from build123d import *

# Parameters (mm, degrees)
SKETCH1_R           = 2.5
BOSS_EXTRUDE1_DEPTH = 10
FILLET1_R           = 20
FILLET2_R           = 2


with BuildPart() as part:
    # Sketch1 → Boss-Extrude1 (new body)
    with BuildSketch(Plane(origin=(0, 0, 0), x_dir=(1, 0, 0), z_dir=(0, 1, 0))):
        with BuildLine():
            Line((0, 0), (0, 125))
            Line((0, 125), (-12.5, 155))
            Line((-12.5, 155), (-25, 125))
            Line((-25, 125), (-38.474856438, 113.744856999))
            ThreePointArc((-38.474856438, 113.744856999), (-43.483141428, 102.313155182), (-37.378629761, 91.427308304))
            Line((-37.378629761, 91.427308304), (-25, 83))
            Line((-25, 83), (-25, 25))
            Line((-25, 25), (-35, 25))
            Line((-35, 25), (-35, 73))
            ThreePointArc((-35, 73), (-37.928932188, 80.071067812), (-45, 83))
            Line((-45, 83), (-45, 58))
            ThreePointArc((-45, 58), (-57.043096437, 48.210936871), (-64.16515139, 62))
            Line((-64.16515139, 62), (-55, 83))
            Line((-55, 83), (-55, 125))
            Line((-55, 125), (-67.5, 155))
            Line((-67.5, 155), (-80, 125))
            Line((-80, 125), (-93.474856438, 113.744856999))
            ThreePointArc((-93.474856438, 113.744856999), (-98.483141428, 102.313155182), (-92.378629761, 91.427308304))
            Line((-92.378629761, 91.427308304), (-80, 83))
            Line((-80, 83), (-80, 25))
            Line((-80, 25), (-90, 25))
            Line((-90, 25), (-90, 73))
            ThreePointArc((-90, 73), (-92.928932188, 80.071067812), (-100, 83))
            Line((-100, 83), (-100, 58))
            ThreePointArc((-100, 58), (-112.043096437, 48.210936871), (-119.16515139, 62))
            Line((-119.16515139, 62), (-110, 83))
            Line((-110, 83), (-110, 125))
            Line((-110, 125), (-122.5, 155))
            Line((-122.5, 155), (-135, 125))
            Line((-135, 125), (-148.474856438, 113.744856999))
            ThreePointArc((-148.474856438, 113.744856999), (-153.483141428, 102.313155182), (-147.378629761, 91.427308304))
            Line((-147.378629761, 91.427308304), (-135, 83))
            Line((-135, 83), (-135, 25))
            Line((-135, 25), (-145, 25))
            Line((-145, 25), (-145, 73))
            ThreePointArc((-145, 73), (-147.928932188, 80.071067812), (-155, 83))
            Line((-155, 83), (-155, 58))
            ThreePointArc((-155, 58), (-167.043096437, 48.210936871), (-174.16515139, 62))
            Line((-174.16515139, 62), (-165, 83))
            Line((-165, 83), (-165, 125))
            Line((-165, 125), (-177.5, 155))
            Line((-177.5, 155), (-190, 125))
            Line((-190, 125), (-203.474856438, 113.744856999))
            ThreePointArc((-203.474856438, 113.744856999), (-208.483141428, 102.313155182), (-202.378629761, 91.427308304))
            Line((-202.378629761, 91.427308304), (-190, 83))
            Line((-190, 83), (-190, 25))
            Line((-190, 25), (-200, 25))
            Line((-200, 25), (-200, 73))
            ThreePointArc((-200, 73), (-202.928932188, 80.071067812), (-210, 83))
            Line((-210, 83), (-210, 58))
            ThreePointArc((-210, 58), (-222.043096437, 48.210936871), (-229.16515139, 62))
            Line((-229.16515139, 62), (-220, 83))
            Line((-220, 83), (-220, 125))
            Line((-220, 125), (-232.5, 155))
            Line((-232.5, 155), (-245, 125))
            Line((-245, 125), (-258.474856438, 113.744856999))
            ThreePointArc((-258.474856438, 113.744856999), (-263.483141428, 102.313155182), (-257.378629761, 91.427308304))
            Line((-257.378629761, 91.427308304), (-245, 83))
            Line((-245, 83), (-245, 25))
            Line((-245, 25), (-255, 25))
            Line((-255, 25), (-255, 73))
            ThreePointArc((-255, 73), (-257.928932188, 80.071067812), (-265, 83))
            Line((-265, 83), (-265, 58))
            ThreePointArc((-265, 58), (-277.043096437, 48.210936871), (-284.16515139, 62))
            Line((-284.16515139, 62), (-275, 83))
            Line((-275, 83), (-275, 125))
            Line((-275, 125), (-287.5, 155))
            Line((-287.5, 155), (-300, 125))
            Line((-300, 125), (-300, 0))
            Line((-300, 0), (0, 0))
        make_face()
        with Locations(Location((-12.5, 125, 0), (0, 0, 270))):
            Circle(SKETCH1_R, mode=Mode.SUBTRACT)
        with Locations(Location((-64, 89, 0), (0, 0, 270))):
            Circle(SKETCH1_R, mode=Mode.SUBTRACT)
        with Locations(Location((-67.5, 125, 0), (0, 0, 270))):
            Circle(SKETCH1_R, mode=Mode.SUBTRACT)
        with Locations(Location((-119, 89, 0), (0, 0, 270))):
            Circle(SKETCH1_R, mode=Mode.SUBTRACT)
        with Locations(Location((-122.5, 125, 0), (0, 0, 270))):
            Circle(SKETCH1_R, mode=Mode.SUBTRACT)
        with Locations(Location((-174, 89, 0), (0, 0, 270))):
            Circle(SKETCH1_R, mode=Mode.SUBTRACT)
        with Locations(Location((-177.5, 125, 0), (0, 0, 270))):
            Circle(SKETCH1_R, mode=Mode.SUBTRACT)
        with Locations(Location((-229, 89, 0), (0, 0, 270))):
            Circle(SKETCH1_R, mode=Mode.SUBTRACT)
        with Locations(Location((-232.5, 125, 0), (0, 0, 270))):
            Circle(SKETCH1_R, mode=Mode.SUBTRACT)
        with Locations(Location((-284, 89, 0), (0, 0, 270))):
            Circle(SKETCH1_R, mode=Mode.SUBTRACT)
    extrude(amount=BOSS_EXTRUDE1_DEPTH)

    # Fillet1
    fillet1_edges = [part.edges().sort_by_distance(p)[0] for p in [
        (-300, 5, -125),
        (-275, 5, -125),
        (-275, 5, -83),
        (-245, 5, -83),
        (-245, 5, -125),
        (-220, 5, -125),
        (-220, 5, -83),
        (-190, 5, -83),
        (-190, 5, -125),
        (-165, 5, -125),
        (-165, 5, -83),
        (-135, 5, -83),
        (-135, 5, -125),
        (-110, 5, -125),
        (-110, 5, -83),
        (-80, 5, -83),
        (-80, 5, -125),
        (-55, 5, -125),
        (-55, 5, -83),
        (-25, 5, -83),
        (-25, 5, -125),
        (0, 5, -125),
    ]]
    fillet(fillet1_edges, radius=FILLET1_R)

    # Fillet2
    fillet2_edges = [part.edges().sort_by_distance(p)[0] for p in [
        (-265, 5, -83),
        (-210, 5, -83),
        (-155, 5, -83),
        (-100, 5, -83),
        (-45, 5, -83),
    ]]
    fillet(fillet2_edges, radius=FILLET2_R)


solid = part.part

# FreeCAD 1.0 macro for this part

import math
import FreeCAD as App
import Part
import Sketcher

V = App.Vector
Q = App.Units.Quantity


def edges_at(feature, points):
    """Names of the edges that pass closest to the given points."""
    edges = feature.Shape.Edges
    near = lambda p: min(range(len(edges)), key=lambda i: edges[i].distToShape(Part.Vertex(*p))[0])
    return sorted({f"Edge{near(p) + 1}" for p in points})

doc = App.newDocument("Part")
body = doc.addObject("PartDesign::Body", "Body")

# Sketch on XZ plane
sketch1 = body.newObject("Sketcher::SketchObject", "Sketch")
sketch1.AttachmentSupport = (doc.getObject("XZ_Plane"), [""])
sketch1.MapMode = "FlatFace"
sketch1.addGeometry(Part.LineSegment(V(0, 0, 0), V(0, -125, 0)), False)
sketch1.addGeometry(Part.LineSegment(V(0, -125, 0), V(-12.5, -155, 0)), False)
sketch1.addGeometry(Part.LineSegment(V(-12.5, -155, 0), V(-25, -125, 0)), False)
sketch1.addGeometry(Part.LineSegment(V(-25, -125, 0), V(-38.5, -113.7, 0)), False)
sketch1.addGeometry(Part.ArcOfCircle(Part.Circle(V(-29.5, -103, 0), V(0, 0, 1), 14), math.radians(124), math.radians(230)), False)
sketch1.addGeometry(Part.LineSegment(V(-37.4, -91.4, 0), V(-25, -83, 0)), False)
sketch1.addGeometry(Part.LineSegment(V(-25, -83, 0), V(-25, -25, 0)), False)
sketch1.addGeometry(Part.LineSegment(V(-25, -25, 0), V(-35, -25, 0)), False)
sketch1.addGeometry(Part.LineSegment(V(-35, -25, 0), V(-35, -73, 0)), False)
sketch1.addGeometry(Part.ArcOfCircle(Part.Circle(V(-45, -73, 0), V(0, 0, 1), 10), math.radians(-90), math.radians(0)), False)
sketch1.addGeometry(Part.LineSegment(V(-45, -83, 0), V(-45, -58, 0)), False)
sketch1.addGeometry(Part.ArcOfCircle(Part.Circle(V(-55, -58, 0), V(0, 0, 1), 10), math.radians(0), math.radians(204)), False)
sketch1.addGeometry(Part.LineSegment(V(-64.2, -62, 0), V(-55, -83, 0)), False)
sketch1.addGeometry(Part.LineSegment(V(-55, -83, 0), V(-55, -125, 0)), False)
sketch1.addGeometry(Part.LineSegment(V(-55, -125, 0), V(-67.5, -155, 0)), False)
sketch1.addGeometry(Part.LineSegment(V(-67.5, -155, 0), V(-80, -125, 0)), False)
sketch1.addGeometry(Part.LineSegment(V(-80, -125, 0), V(-93.5, -113.7, 0)), False)
sketch1.addGeometry(Part.ArcOfCircle(Part.Circle(V(-84.5, -103, 0), V(0, 0, 1), 14), math.radians(124), math.radians(230)), False)
sketch1.addGeometry(Part.LineSegment(V(-92.4, -91.4, 0), V(-80, -83, 0)), False)
sketch1.addGeometry(Part.LineSegment(V(-80, -83, 0), V(-80, -25, 0)), False)
sketch1.addGeometry(Part.LineSegment(V(-80, -25, 0), V(-90, -25, 0)), False)
sketch1.addGeometry(Part.LineSegment(V(-90, -25, 0), V(-90, -73, 0)), False)
sketch1.addGeometry(Part.ArcOfCircle(Part.Circle(V(-100, -73, 0), V(0, 0, 1), 10), math.radians(-90), math.radians(0)), False)
sketch1.addGeometry(Part.LineSegment(V(-100, -83, 0), V(-100, -58, 0)), False)
sketch1.addGeometry(Part.ArcOfCircle(Part.Circle(V(-110, -58, 0), V(0, 0, 1), 10), math.radians(0), math.radians(204)), False)
sketch1.addGeometry(Part.LineSegment(V(-119.2, -62, 0), V(-110, -83, 0)), False)
sketch1.addGeometry(Part.LineSegment(V(-110, -83, 0), V(-110, -125, 0)), False)
sketch1.addGeometry(Part.LineSegment(V(-110, -125, 0), V(-122.5, -155, 0)), False)
sketch1.addGeometry(Part.LineSegment(V(-122.5, -155, 0), V(-135, -125, 0)), False)
sketch1.addGeometry(Part.LineSegment(V(-135, -125, 0), V(-148.5, -113.7, 0)), False)
sketch1.addGeometry(Part.ArcOfCircle(Part.Circle(V(-139.5, -103, 0), V(0, 0, 1), 14), math.radians(124), math.radians(230)), False)
sketch1.addGeometry(Part.LineSegment(V(-147.4, -91.4, 0), V(-135, -83, 0)), False)
sketch1.addGeometry(Part.LineSegment(V(-135, -83, 0), V(-135, -25, 0)), False)
sketch1.addGeometry(Part.LineSegment(V(-135, -25, 0), V(-145, -25, 0)), False)
sketch1.addGeometry(Part.LineSegment(V(-145, -25, 0), V(-145, -73, 0)), False)
sketch1.addGeometry(Part.ArcOfCircle(Part.Circle(V(-155, -73, 0), V(0, 0, 1), 10), math.radians(-90), math.radians(0)), False)
sketch1.addGeometry(Part.LineSegment(V(-155, -83, 0), V(-155, -58, 0)), False)
sketch1.addGeometry(Part.ArcOfCircle(Part.Circle(V(-165, -58, 0), V(0, 0, 1), 10), math.radians(0), math.radians(204)), False)
sketch1.addGeometry(Part.LineSegment(V(-174.2, -62, 0), V(-165, -83, 0)), False)
sketch1.addGeometry(Part.LineSegment(V(-165, -83, 0), V(-165, -125, 0)), False)
sketch1.addGeometry(Part.LineSegment(V(-165, -125, 0), V(-177.5, -155, 0)), False)
sketch1.addGeometry(Part.LineSegment(V(-177.5, -155, 0), V(-190, -125, 0)), False)
sketch1.addGeometry(Part.LineSegment(V(-190, -125, 0), V(-203.5, -113.7, 0)), False)
sketch1.addGeometry(Part.ArcOfCircle(Part.Circle(V(-194.5, -103, 0), V(0, 0, 1), 14), math.radians(124), math.radians(230)), False)
sketch1.addGeometry(Part.LineSegment(V(-202.4, -91.4, 0), V(-190, -83, 0)), False)
sketch1.addGeometry(Part.LineSegment(V(-190, -83, 0), V(-190, -25, 0)), False)
sketch1.addGeometry(Part.LineSegment(V(-190, -25, 0), V(-200, -25, 0)), False)
sketch1.addGeometry(Part.LineSegment(V(-200, -25, 0), V(-200, -73, 0)), False)
sketch1.addGeometry(Part.ArcOfCircle(Part.Circle(V(-210, -73, 0), V(0, 0, 1), 10), math.radians(-90), math.radians(0)), False)
sketch1.addGeometry(Part.LineSegment(V(-210, -83, 0), V(-210, -58, 0)), False)
sketch1.addGeometry(Part.ArcOfCircle(Part.Circle(V(-220, -58, 0), V(0, 0, 1), 10), math.radians(0), math.radians(204)), False)
sketch1.addGeometry(Part.LineSegment(V(-229.2, -62, 0), V(-220, -83, 0)), False)
sketch1.addGeometry(Part.LineSegment(V(-220, -83, 0), V(-220, -125, 0)), False)
sketch1.addGeometry(Part.LineSegment(V(-220, -125, 0), V(-232.5, -155, 0)), False)
sketch1.addGeometry(Part.LineSegment(V(-232.5, -155, 0), V(-245, -125, 0)), False)
sketch1.addGeometry(Part.LineSegment(V(-245, -125, 0), V(-258.5, -113.7, 0)), False)
sketch1.addGeometry(Part.ArcOfCircle(Part.Circle(V(-249.5, -103, 0), V(0, 0, 1), 14), math.radians(124), math.radians(230)), False)
sketch1.addGeometry(Part.LineSegment(V(-257.4, -91.4, 0), V(-245, -83, 0)), False)
sketch1.addGeometry(Part.LineSegment(V(-245, -83, 0), V(-245, -25, 0)), False)
sketch1.addGeometry(Part.LineSegment(V(-245, -25, 0), V(-255, -25, 0)), False)
sketch1.addGeometry(Part.LineSegment(V(-255, -25, 0), V(-255, -73, 0)), False)
sketch1.addGeometry(Part.ArcOfCircle(Part.Circle(V(-265, -73, 0), V(0, 0, 1), 10), math.radians(-90), math.radians(0)), False)
sketch1.addGeometry(Part.LineSegment(V(-265, -83, 0), V(-265, -58, 0)), False)
sketch1.addGeometry(Part.ArcOfCircle(Part.Circle(V(-275, -58, 0), V(0, 0, 1), 10), math.radians(0), math.radians(204)), False)
sketch1.addGeometry(Part.LineSegment(V(-284.2, -62, 0), V(-275, -83, 0)), False)
sketch1.addGeometry(Part.LineSegment(V(-275, -83, 0), V(-275, -125, 0)), False)
sketch1.addGeometry(Part.LineSegment(V(-275, -125, 0), V(-287.5, -155, 0)), False)
sketch1.addGeometry(Part.LineSegment(V(-287.5, -155, 0), V(-300, -125, 0)), False)
sketch1.addGeometry(Part.LineSegment(V(-300, -125, 0), V(-300, 0, 0)), False)
sketch1.addGeometry(Part.LineSegment(V(-300, 0, 0), V(0, 0, 0)), False)
sketch1.addGeometry(Part.Circle(V(-284, -89, 0), V(0, 0, 1), 2.5), False)
sketch1.addGeometry(Part.Circle(V(-229, -89, 0), V(0, 0, 1), 2.5), False)
sketch1.addGeometry(Part.Circle(V(-174, -89, 0), V(0, 0, 1), 2.5), False)
sketch1.addGeometry(Part.Circle(V(-119, -89, 0), V(0, 0, 1), 2.5), False)
sketch1.addGeometry(Part.Circle(V(-64, -89, 0), V(0, 0, 1), 2.5), False)
sketch1.addGeometry(Part.Circle(V(-232.5, -125, 0), V(0, 0, 1), 2.5), False)
sketch1.addGeometry(Part.Circle(V(-177.5, -125, 0), V(0, 0, 1), 2.5), False)
sketch1.addGeometry(Part.Circle(V(-122.5, -125, 0), V(0, 0, 1), 2.5), False)
sketch1.addGeometry(Part.Circle(V(-67.5, -125, 0), V(0, 0, 1), 2.5), False)
sketch1.addGeometry(Part.Circle(V(-12.5, -125, 0), V(0, 0, 1), 2.5), False)
sketch1.addConstraint(Sketcher.Constraint("Coincident", 0, 2, 1, 1))
sketch1.addConstraint(Sketcher.Constraint("Coincident", 1, 2, 2, 1))
sketch1.addConstraint(Sketcher.Constraint("Coincident", 2, 2, 3, 1))
sketch1.addConstraint(Sketcher.Constraint("Tangent", 3, 2, 4, 2))
sketch1.addConstraint(Sketcher.Constraint("Tangent", 4, 1, 5, 1))
sketch1.addConstraint(Sketcher.Constraint("Coincident", 5, 2, 6, 1))
sketch1.addConstraint(Sketcher.Constraint("Coincident", 6, 2, 7, 1))
sketch1.addConstraint(Sketcher.Constraint("Coincident", 7, 2, 8, 1))
sketch1.addConstraint(Sketcher.Constraint("Tangent", 8, 2, 9, 2))
sketch1.addConstraint(Sketcher.Constraint("Coincident", 9, 1, 10, 1))
sketch1.addConstraint(Sketcher.Constraint("Tangent", 10, 2, 11, 1))
sketch1.addConstraint(Sketcher.Constraint("Tangent", 11, 2, 12, 1))
sketch1.addConstraint(Sketcher.Constraint("Coincident", 12, 2, 13, 1))
sketch1.addConstraint(Sketcher.Constraint("Coincident", 13, 2, 14, 1))
sketch1.addConstraint(Sketcher.Constraint("Coincident", 14, 2, 15, 1))
sketch1.addConstraint(Sketcher.Constraint("Coincident", 15, 2, 16, 1))
sketch1.addConstraint(Sketcher.Constraint("Tangent", 16, 2, 17, 2))
sketch1.addConstraint(Sketcher.Constraint("Tangent", 17, 1, 18, 1))
sketch1.addConstraint(Sketcher.Constraint("Coincident", 18, 2, 19, 1))
sketch1.addConstraint(Sketcher.Constraint("Coincident", 19, 2, 20, 1))
sketch1.addConstraint(Sketcher.Constraint("Coincident", 20, 2, 21, 1))
sketch1.addConstraint(Sketcher.Constraint("Tangent", 21, 2, 22, 2))
sketch1.addConstraint(Sketcher.Constraint("Coincident", 22, 1, 23, 1))
sketch1.addConstraint(Sketcher.Constraint("Tangent", 23, 2, 24, 1))
sketch1.addConstraint(Sketcher.Constraint("Tangent", 24, 2, 25, 1))
sketch1.addConstraint(Sketcher.Constraint("Coincident", 25, 2, 26, 1))
sketch1.addConstraint(Sketcher.Constraint("Coincident", 26, 2, 27, 1))
sketch1.addConstraint(Sketcher.Constraint("Coincident", 27, 2, 28, 1))
sketch1.addConstraint(Sketcher.Constraint("Coincident", 28, 2, 29, 1))
sketch1.addConstraint(Sketcher.Constraint("Tangent", 29, 2, 30, 2))
sketch1.addConstraint(Sketcher.Constraint("Tangent", 30, 1, 31, 1))
sketch1.addConstraint(Sketcher.Constraint("Coincident", 31, 2, 32, 1))
sketch1.addConstraint(Sketcher.Constraint("Coincident", 32, 2, 33, 1))
sketch1.addConstraint(Sketcher.Constraint("Coincident", 33, 2, 34, 1))
sketch1.addConstraint(Sketcher.Constraint("Tangent", 34, 2, 35, 2))
sketch1.addConstraint(Sketcher.Constraint("Coincident", 35, 1, 36, 1))
sketch1.addConstraint(Sketcher.Constraint("Tangent", 36, 2, 37, 1))
sketch1.addConstraint(Sketcher.Constraint("Tangent", 37, 2, 38, 1))
sketch1.addConstraint(Sketcher.Constraint("Coincident", 38, 2, 39, 1))
sketch1.addConstraint(Sketcher.Constraint("Coincident", 39, 2, 40, 1))
sketch1.addConstraint(Sketcher.Constraint("Coincident", 40, 2, 41, 1))
sketch1.addConstraint(Sketcher.Constraint("Coincident", 41, 2, 42, 1))
sketch1.addConstraint(Sketcher.Constraint("Tangent", 42, 2, 43, 2))
sketch1.addConstraint(Sketcher.Constraint("Tangent", 43, 1, 44, 1))
sketch1.addConstraint(Sketcher.Constraint("Coincident", 44, 2, 45, 1))
sketch1.addConstraint(Sketcher.Constraint("Coincident", 45, 2, 46, 1))
sketch1.addConstraint(Sketcher.Constraint("Coincident", 46, 2, 47, 1))
sketch1.addConstraint(Sketcher.Constraint("Tangent", 47, 2, 48, 2))
sketch1.addConstraint(Sketcher.Constraint("Coincident", 48, 1, 49, 1))
sketch1.addConstraint(Sketcher.Constraint("Tangent", 49, 2, 50, 1))
sketch1.addConstraint(Sketcher.Constraint("Tangent", 50, 2, 51, 1))
sketch1.addConstraint(Sketcher.Constraint("Coincident", 51, 2, 52, 1))
sketch1.addConstraint(Sketcher.Constraint("Coincident", 52, 2, 53, 1))
sketch1.addConstraint(Sketcher.Constraint("Coincident", 53, 2, 54, 1))
sketch1.addConstraint(Sketcher.Constraint("Coincident", 54, 2, 55, 1))
sketch1.addConstraint(Sketcher.Constraint("Tangent", 55, 2, 56, 2))
sketch1.addConstraint(Sketcher.Constraint("Tangent", 56, 1, 57, 1))
sketch1.addConstraint(Sketcher.Constraint("Coincident", 57, 2, 58, 1))
sketch1.addConstraint(Sketcher.Constraint("Coincident", 58, 2, 59, 1))
sketch1.addConstraint(Sketcher.Constraint("Coincident", 59, 2, 60, 1))
sketch1.addConstraint(Sketcher.Constraint("Tangent", 60, 2, 61, 2))
sketch1.addConstraint(Sketcher.Constraint("Coincident", 61, 1, 62, 1))
sketch1.addConstraint(Sketcher.Constraint("Tangent", 62, 2, 63, 1))
sketch1.addConstraint(Sketcher.Constraint("Tangent", 63, 2, 64, 1))
sketch1.addConstraint(Sketcher.Constraint("Coincident", 64, 2, 65, 1))
sketch1.addConstraint(Sketcher.Constraint("Coincident", 65, 2, 66, 1))
sketch1.addConstraint(Sketcher.Constraint("Coincident", 66, 2, 67, 1))
sketch1.addConstraint(Sketcher.Constraint("Coincident", 67, 2, 68, 1))
sketch1.addConstraint(Sketcher.Constraint("Coincident", 68, 2, 69, 1))
sketch1.addConstraint(Sketcher.Constraint("Coincident", 69, 2, 0, 1))
sketch1.addConstraint(Sketcher.Constraint("Vertical", 0))
sketch1.addConstraint(Sketcher.Constraint("Vertical", 6))
sketch1.addConstraint(Sketcher.Constraint("Horizontal", 7))
sketch1.addConstraint(Sketcher.Constraint("Vertical", 8))
sketch1.addConstraint(Sketcher.Constraint("Vertical", 10))
sketch1.addConstraint(Sketcher.Constraint("Vertical", 13))
sketch1.addConstraint(Sketcher.Constraint("Vertical", 19))
sketch1.addConstraint(Sketcher.Constraint("Horizontal", 20))
sketch1.addConstraint(Sketcher.Constraint("Vertical", 21))
sketch1.addConstraint(Sketcher.Constraint("Vertical", 23))
sketch1.addConstraint(Sketcher.Constraint("Vertical", 26))
sketch1.addConstraint(Sketcher.Constraint("Vertical", 32))
sketch1.addConstraint(Sketcher.Constraint("Horizontal", 33))
sketch1.addConstraint(Sketcher.Constraint("Vertical", 34))
sketch1.addConstraint(Sketcher.Constraint("Vertical", 36))
sketch1.addConstraint(Sketcher.Constraint("Vertical", 39))
sketch1.addConstraint(Sketcher.Constraint("Vertical", 45))
sketch1.addConstraint(Sketcher.Constraint("Horizontal", 46))
sketch1.addConstraint(Sketcher.Constraint("Vertical", 47))
sketch1.addConstraint(Sketcher.Constraint("Vertical", 49))
sketch1.addConstraint(Sketcher.Constraint("Vertical", 52))
sketch1.addConstraint(Sketcher.Constraint("Vertical", 58))
sketch1.addConstraint(Sketcher.Constraint("Horizontal", 59))
sketch1.addConstraint(Sketcher.Constraint("Vertical", 60))
sketch1.addConstraint(Sketcher.Constraint("Vertical", 62))
sketch1.addConstraint(Sketcher.Constraint("Vertical", 65))
sketch1.addConstraint(Sketcher.Constraint("Vertical", 68))
sketch1.addConstraint(Sketcher.Constraint("Horizontal", 69))
sketch1.addConstraint(Sketcher.Constraint("Coincident", 69, 2, -1, 1))
sketch1.addConstraint(Sketcher.Constraint("Equal", 9, 11))
sketch1.addConstraint(Sketcher.Constraint("Equal", 4, 17))
sketch1.addConstraint(Sketcher.Constraint("Equal", 11, 22))
sketch1.addConstraint(Sketcher.Constraint("Equal", 22, 24))
sketch1.addConstraint(Sketcher.Constraint("Equal", 17, 30))
sketch1.addConstraint(Sketcher.Constraint("Equal", 24, 35))
sketch1.addConstraint(Sketcher.Constraint("Equal", 35, 37))
sketch1.addConstraint(Sketcher.Constraint("Equal", 30, 43))
sketch1.addConstraint(Sketcher.Constraint("Equal", 37, 48))
sketch1.addConstraint(Sketcher.Constraint("Equal", 48, 50))
sketch1.addConstraint(Sketcher.Constraint("Equal", 43, 56))
sketch1.addConstraint(Sketcher.Constraint("Equal", 50, 61))
sketch1.addConstraint(Sketcher.Constraint("Equal", 61, 63))
sketch1.addConstraint(Sketcher.Constraint("Equal", 70, 71))
sketch1.addConstraint(Sketcher.Constraint("Equal", 71, 72))
sketch1.addConstraint(Sketcher.Constraint("Equal", 72, 73))
sketch1.addConstraint(Sketcher.Constraint("Equal", 73, 74))
sketch1.addConstraint(Sketcher.Constraint("Equal", 74, 75))
sketch1.addConstraint(Sketcher.Constraint("Equal", 75, 76))
sketch1.addConstraint(Sketcher.Constraint("Equal", 76, 77))
sketch1.addConstraint(Sketcher.Constraint("Equal", 77, 78))
sketch1.addConstraint(Sketcher.Constraint("Equal", 78, 79))
sketch1.addConstraint(Sketcher.Constraint("Parallel", 1, 14))
sketch1.addConstraint(Sketcher.Constraint("Parallel", 2, 15))
sketch1.addConstraint(Sketcher.Constraint("Parallel", 3, 16))
sketch1.addConstraint(Sketcher.Constraint("Parallel", 5, 18))
sketch1.addConstraint(Sketcher.Constraint("Parallel", 12, 25))
sketch1.addConstraint(Sketcher.Constraint("Parallel", 14, 27))
sketch1.addConstraint(Sketcher.Constraint("Parallel", 15, 28))
sketch1.addConstraint(Sketcher.Constraint("Parallel", 16, 29))
sketch1.addConstraint(Sketcher.Constraint("Parallel", 18, 31))
sketch1.addConstraint(Sketcher.Constraint("Parallel", 25, 38))
sketch1.addConstraint(Sketcher.Constraint("Parallel", 27, 40))
sketch1.addConstraint(Sketcher.Constraint("Parallel", 28, 41))
sketch1.addConstraint(Sketcher.Constraint("Parallel", 29, 42))
sketch1.addConstraint(Sketcher.Constraint("Parallel", 31, 44))
sketch1.addConstraint(Sketcher.Constraint("Parallel", 38, 51))
sketch1.addConstraint(Sketcher.Constraint("Parallel", 40, 53))
sketch1.addConstraint(Sketcher.Constraint("Parallel", 41, 54))
sketch1.addConstraint(Sketcher.Constraint("Parallel", 42, 55))
sketch1.addConstraint(Sketcher.Constraint("Parallel", 44, 57))
sketch1.addConstraint(Sketcher.Constraint("Parallel", 51, 64))
sketch1.addConstraint(Sketcher.Constraint("Parallel", 53, 66))
sketch1.addConstraint(Sketcher.Constraint("Parallel", 54, 67))
sketch1.addConstraint(Sketcher.Constraint("Horizontal", 4, 3, 17, 3))
sketch1.addConstraint(Sketcher.Constraint("Horizontal", 9, 3, 22, 3))
sketch1.addConstraint(Sketcher.Constraint("Horizontal", 11, 3, 24, 3))
sketch1.addConstraint(Sketcher.Constraint("Horizontal", 17, 3, 30, 3))
sketch1.addConstraint(Sketcher.Constraint("Horizontal", 22, 3, 35, 3))
sketch1.addConstraint(Sketcher.Constraint("Horizontal", 24, 3, 37, 3))
sketch1.addConstraint(Sketcher.Constraint("Horizontal", 30, 3, 43, 3))
sketch1.addConstraint(Sketcher.Constraint("Horizontal", 35, 3, 48, 3))
sketch1.addConstraint(Sketcher.Constraint("Horizontal", 37, 3, 50, 3))
sketch1.addConstraint(Sketcher.Constraint("Horizontal", 43, 3, 56, 3))
sketch1.addConstraint(Sketcher.Constraint("Horizontal", 48, 3, 61, 3))
sketch1.addConstraint(Sketcher.Constraint("Horizontal", 50, 3, 63, 3))
sketch1.addConstraint(Sketcher.Constraint("Horizontal", 70, 3, 71, 3))
sketch1.addConstraint(Sketcher.Constraint("Horizontal", 71, 3, 72, 3))
sketch1.addConstraint(Sketcher.Constraint("Horizontal", 72, 3, 73, 3))
sketch1.addConstraint(Sketcher.Constraint("Horizontal", 73, 3, 74, 3))
sketch1.addConstraint(Sketcher.Constraint("Horizontal", 75, 3, 76, 3))
sketch1.addConstraint(Sketcher.Constraint("Horizontal", 76, 3, 77, 3))
sketch1.addConstraint(Sketcher.Constraint("Horizontal", 77, 3, 78, 3))
sketch1.addConstraint(Sketcher.Constraint("Horizontal", 78, 3, 79, 3))
sketch1.addConstraint(Sketcher.Constraint("Horizontal", 79, 3, 0, 2))
sketch1.addConstraint(Sketcher.Constraint("Horizontal", 0, 2, 2, 2))
sketch1.addConstraint(Sketcher.Constraint("Horizontal", 5, 2, 9, 1))
sketch1.addConstraint(Sketcher.Constraint("Horizontal", 9, 1, 12, 2))
sketch1.addConstraint(Sketcher.Constraint("Horizontal", 2, 2, 13, 2))
sketch1.addConstraint(Sketcher.Constraint("Horizontal", 1, 2, 14, 2))
sketch1.addConstraint(Sketcher.Constraint("Horizontal", 13, 2, 15, 2))
sketch1.addConstraint(Sketcher.Constraint("Horizontal", 12, 2, 18, 2))
sketch1.addConstraint(Sketcher.Constraint("Horizontal", 7, 2, 19, 2))
sketch1.addConstraint(Sketcher.Constraint("Horizontal", 22, 1, 25, 2))
sketch1.addConstraint(Sketcher.Constraint("Horizontal", 15, 2, 26, 2))
sketch1.addConstraint(Sketcher.Constraint("Horizontal", 14, 2, 27, 2))
sketch1.addConstraint(Sketcher.Constraint("Horizontal", 26, 2, 28, 2))
sketch1.addConstraint(Sketcher.Constraint("Horizontal", 25, 2, 31, 2))
sketch1.addConstraint(Sketcher.Constraint("Horizontal", 20, 2, 32, 2))
sketch1.addConstraint(Sketcher.Constraint("Horizontal", 35, 1, 38, 2))
sketch1.addConstraint(Sketcher.Constraint("Horizontal", 28, 2, 39, 2))
sketch1.addConstraint(Sketcher.Constraint("Horizontal", 27, 2, 40, 2))
sketch1.addConstraint(Sketcher.Constraint("Horizontal", 39, 2, 41, 2))
sketch1.addConstraint(Sketcher.Constraint("Horizontal", 38, 2, 44, 2))
sketch1.addConstraint(Sketcher.Constraint("Horizontal", 33, 2, 45, 2))
sketch1.addConstraint(Sketcher.Constraint("Horizontal", 48, 1, 51, 2))
sketch1.addConstraint(Sketcher.Constraint("Horizontal", 41, 2, 52, 2))
sketch1.addConstraint(Sketcher.Constraint("Horizontal", 40, 2, 53, 2))
sketch1.addConstraint(Sketcher.Constraint("Horizontal", 52, 2, 54, 2))
sketch1.addConstraint(Sketcher.Constraint("Horizontal", 51, 2, 57, 2))
sketch1.addConstraint(Sketcher.Constraint("Horizontal", 46, 2, 58, 2))
sketch1.addConstraint(Sketcher.Constraint("Horizontal", 61, 1, 64, 2))
sketch1.addConstraint(Sketcher.Constraint("Horizontal", 54, 2, 65, 2))
sketch1.addConstraint(Sketcher.Constraint("Horizontal", 53, 2, 66, 2))
sketch1.addConstraint(Sketcher.Constraint("Horizontal", 65, 2, 67, 2))
sketch1.addConstraint(Sketcher.Constraint("Vertical", 79, 3, 1, 2))
sketch1.addConstraint(Sketcher.Constraint("Vertical", 2, 2, 5, 2))
sketch1.addConstraint(Sketcher.Constraint("Vertical", 11, 3, 12, 2))
sketch1.addConstraint(Sketcher.Constraint("Vertical", 78, 3, 14, 2))
sketch1.addConstraint(Sketcher.Constraint("Vertical", 77, 3, 27, 2))
sketch1.addConstraint(Sketcher.Constraint("Vertical", 76, 3, 40, 2))
sketch1.addConstraint(Sketcher.Constraint("Vertical", 75, 3, 53, 2))
sketch1.addConstraint(Sketcher.Constraint("Equal", 7, 20))
sketch1.addConstraint(Sketcher.Constraint("Equal", 20, 33))
sketch1.addConstraint(Sketcher.Constraint("Equal", 33, 46))
sketch1.addConstraint(Sketcher.Constraint("Equal", 46, 59))
sketch1.addConstraint(Sketcher.Constraint("Equal", 1, 2))
sketch1.addConstraint(Sketcher.Constraint("Diameter", 70, Q("5 mm")))
sketch1.addConstraint(Sketcher.Constraint("Radius", 4, Q("14 mm")))
sketch1.addConstraint(Sketcher.Constraint("Radius", 9, Q("10 mm")))
sketch1.addConstraint(Sketcher.Constraint("DistanceX", 7, 2, 7, 1, Q("10 mm")))
sketch1.addConstraint(Sketcher.Constraint("DistanceX", 69, 1, 69, 2, Q("300 mm")))
sketch1.addConstraint(Sketcher.Constraint("DistanceY", 0, 2, 0, 1, Q("125 mm")))
sketch1.addConstraint(Sketcher.Constraint("DistanceY", 6, 1, 6, 2, Q("58 mm")))
sketch1.addConstraint(Sketcher.Constraint("DistanceY", 10, 1, 10, 2, Q("25 mm")))
sketch1.addConstraint(Sketcher.Constraint("DistanceY", 13, 2, 13, 1, Q("42 mm")))
sketch1.addConstraint(Sketcher.Constraint("DistanceY", 4, 3, -1, 1, Q("103 mm")))
sketch1.addConstraint(Sketcher.Constraint("DistanceX", 9, 3, -1, 1, Q("45 mm")))
sketch1.addConstraint(Sketcher.Constraint("DistanceX", 11, 3, -1, 1, Q("55 mm")))
sketch1.addConstraint(Sketcher.Constraint("DistanceX", 24, 3, -1, 1, Q("110 mm")))
sketch1.addConstraint(Sketcher.Constraint("DistanceX", 37, 3, -1, 1, Q("165 mm")))
sketch1.addConstraint(Sketcher.Constraint("DistanceX", 50, 3, -1, 1, Q("220 mm")))
sketch1.addConstraint(Sketcher.Constraint("DistanceX", 70, 3, -1, 1, Q("284 mm")))
sketch1.addConstraint(Sketcher.Constraint("DistanceY", 70, 3, -1, 1, Q("89 mm")))
sketch1.addConstraint(Sketcher.Constraint("DistanceX", 71, 3, -1, 1, Q("229 mm")))
sketch1.addConstraint(Sketcher.Constraint("DistanceX", 72, 3, -1, 1, Q("174 mm")))
sketch1.addConstraint(Sketcher.Constraint("DistanceX", 73, 3, -1, 1, Q("119 mm")))
sketch1.addConstraint(Sketcher.Constraint("DistanceX", 74, 3, -1, 1, Q("64 mm")))
sketch1.addConstraint(Sketcher.Constraint("DistanceY", 1, 2, -1, 1, Q("155 mm")))
sketch1.addConstraint(Sketcher.Constraint("DistanceX", 4, 3, -1, 1, Q("29.5 mm")))
pad1 = body.newObject("PartDesign::Pad", "Pad")
pad1.Profile = sketch1
pad1.Length = 10
pad1.Reversed = True
doc.recompute()

fillet = body.newObject("PartDesign::Fillet", "Fillet")
fillet.Base = (pad1, edges_at(pad1, [
    (-300, 5, -125),
    (-275, 5, -125),
    (-275, 5, -83),
    (-245, 5, -83),
    (-245, 5, -125),
    (-220, 5, -125),
    (-220, 5, -83),
    (-190, 5, -83),
    (-190, 5, -125),
    (-165, 5, -125),
    (-165, 5, -83),
    (-135, 5, -83),
    (-135, 5, -125),
    (-110, 5, -125),
    (-110, 5, -83),
    (-80, 5, -83),
    (-80, 5, -125),
    (-55, 5, -125),
    (-55, 5, -83),
    (-25, 5, -83),
    (-25, 5, -125),
    (0, 5, -125),
]))
fillet.Radius = 20
doc.recompute()

fillet2 = body.newObject("PartDesign::Fillet", "Fillet001")
fillet2.Base = (fillet, edges_at(fillet, [
    (-265, 5, -83),
    (-210, 5, -83),
    (-155, 5, -83),
    (-100, 5, -83),
    (-45, 5, -83),
]))
fillet2.Radius = 2

doc.recompute()
